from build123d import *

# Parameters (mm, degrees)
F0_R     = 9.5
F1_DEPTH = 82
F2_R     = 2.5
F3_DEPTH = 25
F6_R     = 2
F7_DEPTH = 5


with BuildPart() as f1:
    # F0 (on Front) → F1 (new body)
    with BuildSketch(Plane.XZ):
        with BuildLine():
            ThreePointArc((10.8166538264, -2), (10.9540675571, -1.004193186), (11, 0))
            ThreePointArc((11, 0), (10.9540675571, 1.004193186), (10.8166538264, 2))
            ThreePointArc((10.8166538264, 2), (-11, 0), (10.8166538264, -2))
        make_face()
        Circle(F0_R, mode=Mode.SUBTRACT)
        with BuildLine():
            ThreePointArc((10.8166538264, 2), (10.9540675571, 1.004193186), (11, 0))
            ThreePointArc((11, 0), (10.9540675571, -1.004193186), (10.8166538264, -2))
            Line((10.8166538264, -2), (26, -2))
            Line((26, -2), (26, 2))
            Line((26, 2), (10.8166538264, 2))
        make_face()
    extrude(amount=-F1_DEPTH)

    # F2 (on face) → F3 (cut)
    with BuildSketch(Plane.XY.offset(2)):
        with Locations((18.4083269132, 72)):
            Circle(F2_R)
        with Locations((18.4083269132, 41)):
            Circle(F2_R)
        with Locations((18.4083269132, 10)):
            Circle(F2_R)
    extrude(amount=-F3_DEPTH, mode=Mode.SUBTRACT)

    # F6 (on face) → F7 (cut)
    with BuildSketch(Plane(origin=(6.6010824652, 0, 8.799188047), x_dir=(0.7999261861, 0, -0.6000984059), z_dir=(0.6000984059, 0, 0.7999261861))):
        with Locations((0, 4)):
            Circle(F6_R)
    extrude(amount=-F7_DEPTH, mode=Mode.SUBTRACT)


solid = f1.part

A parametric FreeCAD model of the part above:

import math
import FreeCAD as App
import Part
import Sketcher

V = App.Vector

doc = App.newDocument("Part")
params = doc.addObject("Spreadsheet::Sheet", "Params")
for row, (alias, value) in enumerate([
    ("sketch1_diameter", "19 mm"),
    ("sketch1_radius", "11 mm"),
    ("sketch1_height", "4 mm"),
    ("pad1_length", "82 mm"),
    ("sketch2_diameter", "5 mm"),
    ("pocket1_length", "25 mm"),
    ("sketch3_diameter", "4 mm"),
    ("pocket2_length", "5 mm"),
], start=1):
    params.set(f"A{row}", alias)
    params.set(f"B{row}", "=" + value)
    params.setAlias(f"B{row}", alias)

body = doc.addObject("PartDesign::Body", "Body")

# Sketch on XZ plane
sketch1 = doc.addObject("Sketcher::SketchObject", "Sketch")
body.addObject(sketch1)
sketch1.AttachmentSupport = (doc.XZ_Plane, [""])
sketch1.MapMode = "FlatFace"
sketch1.addGeometry([
    Part.ArcOfCircle(Part.Circle(V(0, 0, 0), V(0, 0, 1), 11), math.radians(10), math.radians(350)),  # 0
    Part.LineSegment(V(10.8, -2, 0), V(26, -2, 0)),  # 1
    Part.LineSegment(V(26, -2, 0), V(26, 2, 0)),  # 2
    Part.LineSegment(V(26, 2, 0), V(10.8, 2, 0)),  # 3
    Part.Circle(V(0, 0, 0), V(0, 0, 1), 9.5),  # 4
], False)
sketch1.addConstraint([
    Sketcher.Constraint("Coincident", 0, 2, 1, 1),
    Sketcher.Constraint("Coincident", 1, 2, 2, 1),
    Sketcher.Constraint("Coincident", 2, 2, 3, 1),
    Sketcher.Constraint("Coincident", 3, 2, 0, 1),
    Sketcher.Constraint("Horizontal", 1),
    Sketcher.Constraint("Vertical", 2),
    Sketcher.Constraint("Horizontal", 3),
    Sketcher.Constraint("Coincident", 0, 3, -1, 1),
    Sketcher.Constraint("Coincident", 4, 3, -1, 1),
    Sketcher.Constraint("Vertical", 0, 2, 3, 2),
    Sketcher.Constraint("Diameter", 4, 19.0),
    Sketcher.Constraint("Radius", 0, 11.0),
    Sketcher.Constraint("DistanceY", 2, 1, 2, 2, 4.0),
    Sketcher.Constraint("DistanceX", -1, 1, 1, 2, 26.0),
])
sketch1.setExpression("Constraints[10]", "Params.sketch1_diameter")
sketch1.setExpression("Constraints[11]", "Params.sketch1_radius")
sketch1.setExpression("Constraints[12]", "Params.sketch1_height")
pad1 = doc.addObject("PartDesign::Pad", "Pad")
body.addObject(pad1)
pad1.Profile = sketch1
pad1.setExpression("Length", "Params.pad1_length")
pad1.Reversed = True

# Sketch on XY plane
sketch2 = doc.addObject("Sketcher::SketchObject", "Sketch001")
body.addObject(sketch2)
sketch2.AttachmentSupport = (doc.XY_Plane, [""])
sketch2.MapMode = "FlatFace"
sketch2.AttachmentOffset = App.Placement(V(0, 0, 2), App.Rotation())
sketch2.addGeometry([
    Part.Circle(V(18.4, 72, 0), V(0, 0, 1), 2.5),
    Part.Circle(V(18.4, 41, 0), V(0, 0, 1), 2.5),
    Part.Circle(V(18.4, 10, 0), V(0, 0, 1), 2.5),
], False)
sketch2.addConstraint([
    Sketcher.Constraint("Equal", 0, 1),
    Sketcher.Constraint("Equal", 1, 2),
    Sketcher.Constraint("Vertical", 0, 3, 1, 3),
    Sketcher.Constraint("Vertical", 1, 3, 2, 3),
    Sketcher.Constraint("Diameter", 0, 5.0),
    Sketcher.Constraint("DistanceY", -1, 1, 0, 3, 72.0),
    Sketcher.Constraint("DistanceY", -1, 1, 1, 3, 41.0),
    Sketcher.Constraint("DistanceY", -1, 1, 2, 3, 10.0),
    Sketcher.Constraint("DistanceX", -1, 1, 0, 3, 18.408327),
])
sketch2.setExpression("Constraints[4]", "Params.sketch2_diameter")
pocket1 = doc.addObject("PartDesign::Pocket", "Pocket")
body.addObject(pocket1)
pocket1.Profile = sketch2
pocket1.setExpression("Length", "Params.pocket1_length")

# Sketch on an angled plane
sketch3 = doc.addObject("Sketcher::SketchObject", "Sketch002")
body.addObject(sketch3)
sketch3.Placement = App.Placement(V(6.601082, 0, 8.799188), App.Rotation(V(0.799926186, 0, -0.600098406), V(0, 1, 0), V(0.600098406, 0, 0.799926186), "ZXY"))
sketch3.addGeometry(Part.Circle(V(0, 4, 0), V(0, 0, 1), 2), False)
sketch3.addConstraint([
    Sketcher.Constraint("PointOnObject", 0, 3, -2),
    Sketcher.Constraint("Diameter", 0, 4.0),
    Sketcher.Constraint("DistanceY", -1, 1, 0, 3, 4.0),
])
sketch3.setExpression("Constraints[1]", "Params.sketch3_diameter")
pocket2 = doc.addObject("PartDesign::Pocket", "Pocket001")
body.addObject(pocket2)
pocket2.Profile = sketch3
pocket2.setExpression("Length", "Params.pocket2_length")

doc.recompute()
